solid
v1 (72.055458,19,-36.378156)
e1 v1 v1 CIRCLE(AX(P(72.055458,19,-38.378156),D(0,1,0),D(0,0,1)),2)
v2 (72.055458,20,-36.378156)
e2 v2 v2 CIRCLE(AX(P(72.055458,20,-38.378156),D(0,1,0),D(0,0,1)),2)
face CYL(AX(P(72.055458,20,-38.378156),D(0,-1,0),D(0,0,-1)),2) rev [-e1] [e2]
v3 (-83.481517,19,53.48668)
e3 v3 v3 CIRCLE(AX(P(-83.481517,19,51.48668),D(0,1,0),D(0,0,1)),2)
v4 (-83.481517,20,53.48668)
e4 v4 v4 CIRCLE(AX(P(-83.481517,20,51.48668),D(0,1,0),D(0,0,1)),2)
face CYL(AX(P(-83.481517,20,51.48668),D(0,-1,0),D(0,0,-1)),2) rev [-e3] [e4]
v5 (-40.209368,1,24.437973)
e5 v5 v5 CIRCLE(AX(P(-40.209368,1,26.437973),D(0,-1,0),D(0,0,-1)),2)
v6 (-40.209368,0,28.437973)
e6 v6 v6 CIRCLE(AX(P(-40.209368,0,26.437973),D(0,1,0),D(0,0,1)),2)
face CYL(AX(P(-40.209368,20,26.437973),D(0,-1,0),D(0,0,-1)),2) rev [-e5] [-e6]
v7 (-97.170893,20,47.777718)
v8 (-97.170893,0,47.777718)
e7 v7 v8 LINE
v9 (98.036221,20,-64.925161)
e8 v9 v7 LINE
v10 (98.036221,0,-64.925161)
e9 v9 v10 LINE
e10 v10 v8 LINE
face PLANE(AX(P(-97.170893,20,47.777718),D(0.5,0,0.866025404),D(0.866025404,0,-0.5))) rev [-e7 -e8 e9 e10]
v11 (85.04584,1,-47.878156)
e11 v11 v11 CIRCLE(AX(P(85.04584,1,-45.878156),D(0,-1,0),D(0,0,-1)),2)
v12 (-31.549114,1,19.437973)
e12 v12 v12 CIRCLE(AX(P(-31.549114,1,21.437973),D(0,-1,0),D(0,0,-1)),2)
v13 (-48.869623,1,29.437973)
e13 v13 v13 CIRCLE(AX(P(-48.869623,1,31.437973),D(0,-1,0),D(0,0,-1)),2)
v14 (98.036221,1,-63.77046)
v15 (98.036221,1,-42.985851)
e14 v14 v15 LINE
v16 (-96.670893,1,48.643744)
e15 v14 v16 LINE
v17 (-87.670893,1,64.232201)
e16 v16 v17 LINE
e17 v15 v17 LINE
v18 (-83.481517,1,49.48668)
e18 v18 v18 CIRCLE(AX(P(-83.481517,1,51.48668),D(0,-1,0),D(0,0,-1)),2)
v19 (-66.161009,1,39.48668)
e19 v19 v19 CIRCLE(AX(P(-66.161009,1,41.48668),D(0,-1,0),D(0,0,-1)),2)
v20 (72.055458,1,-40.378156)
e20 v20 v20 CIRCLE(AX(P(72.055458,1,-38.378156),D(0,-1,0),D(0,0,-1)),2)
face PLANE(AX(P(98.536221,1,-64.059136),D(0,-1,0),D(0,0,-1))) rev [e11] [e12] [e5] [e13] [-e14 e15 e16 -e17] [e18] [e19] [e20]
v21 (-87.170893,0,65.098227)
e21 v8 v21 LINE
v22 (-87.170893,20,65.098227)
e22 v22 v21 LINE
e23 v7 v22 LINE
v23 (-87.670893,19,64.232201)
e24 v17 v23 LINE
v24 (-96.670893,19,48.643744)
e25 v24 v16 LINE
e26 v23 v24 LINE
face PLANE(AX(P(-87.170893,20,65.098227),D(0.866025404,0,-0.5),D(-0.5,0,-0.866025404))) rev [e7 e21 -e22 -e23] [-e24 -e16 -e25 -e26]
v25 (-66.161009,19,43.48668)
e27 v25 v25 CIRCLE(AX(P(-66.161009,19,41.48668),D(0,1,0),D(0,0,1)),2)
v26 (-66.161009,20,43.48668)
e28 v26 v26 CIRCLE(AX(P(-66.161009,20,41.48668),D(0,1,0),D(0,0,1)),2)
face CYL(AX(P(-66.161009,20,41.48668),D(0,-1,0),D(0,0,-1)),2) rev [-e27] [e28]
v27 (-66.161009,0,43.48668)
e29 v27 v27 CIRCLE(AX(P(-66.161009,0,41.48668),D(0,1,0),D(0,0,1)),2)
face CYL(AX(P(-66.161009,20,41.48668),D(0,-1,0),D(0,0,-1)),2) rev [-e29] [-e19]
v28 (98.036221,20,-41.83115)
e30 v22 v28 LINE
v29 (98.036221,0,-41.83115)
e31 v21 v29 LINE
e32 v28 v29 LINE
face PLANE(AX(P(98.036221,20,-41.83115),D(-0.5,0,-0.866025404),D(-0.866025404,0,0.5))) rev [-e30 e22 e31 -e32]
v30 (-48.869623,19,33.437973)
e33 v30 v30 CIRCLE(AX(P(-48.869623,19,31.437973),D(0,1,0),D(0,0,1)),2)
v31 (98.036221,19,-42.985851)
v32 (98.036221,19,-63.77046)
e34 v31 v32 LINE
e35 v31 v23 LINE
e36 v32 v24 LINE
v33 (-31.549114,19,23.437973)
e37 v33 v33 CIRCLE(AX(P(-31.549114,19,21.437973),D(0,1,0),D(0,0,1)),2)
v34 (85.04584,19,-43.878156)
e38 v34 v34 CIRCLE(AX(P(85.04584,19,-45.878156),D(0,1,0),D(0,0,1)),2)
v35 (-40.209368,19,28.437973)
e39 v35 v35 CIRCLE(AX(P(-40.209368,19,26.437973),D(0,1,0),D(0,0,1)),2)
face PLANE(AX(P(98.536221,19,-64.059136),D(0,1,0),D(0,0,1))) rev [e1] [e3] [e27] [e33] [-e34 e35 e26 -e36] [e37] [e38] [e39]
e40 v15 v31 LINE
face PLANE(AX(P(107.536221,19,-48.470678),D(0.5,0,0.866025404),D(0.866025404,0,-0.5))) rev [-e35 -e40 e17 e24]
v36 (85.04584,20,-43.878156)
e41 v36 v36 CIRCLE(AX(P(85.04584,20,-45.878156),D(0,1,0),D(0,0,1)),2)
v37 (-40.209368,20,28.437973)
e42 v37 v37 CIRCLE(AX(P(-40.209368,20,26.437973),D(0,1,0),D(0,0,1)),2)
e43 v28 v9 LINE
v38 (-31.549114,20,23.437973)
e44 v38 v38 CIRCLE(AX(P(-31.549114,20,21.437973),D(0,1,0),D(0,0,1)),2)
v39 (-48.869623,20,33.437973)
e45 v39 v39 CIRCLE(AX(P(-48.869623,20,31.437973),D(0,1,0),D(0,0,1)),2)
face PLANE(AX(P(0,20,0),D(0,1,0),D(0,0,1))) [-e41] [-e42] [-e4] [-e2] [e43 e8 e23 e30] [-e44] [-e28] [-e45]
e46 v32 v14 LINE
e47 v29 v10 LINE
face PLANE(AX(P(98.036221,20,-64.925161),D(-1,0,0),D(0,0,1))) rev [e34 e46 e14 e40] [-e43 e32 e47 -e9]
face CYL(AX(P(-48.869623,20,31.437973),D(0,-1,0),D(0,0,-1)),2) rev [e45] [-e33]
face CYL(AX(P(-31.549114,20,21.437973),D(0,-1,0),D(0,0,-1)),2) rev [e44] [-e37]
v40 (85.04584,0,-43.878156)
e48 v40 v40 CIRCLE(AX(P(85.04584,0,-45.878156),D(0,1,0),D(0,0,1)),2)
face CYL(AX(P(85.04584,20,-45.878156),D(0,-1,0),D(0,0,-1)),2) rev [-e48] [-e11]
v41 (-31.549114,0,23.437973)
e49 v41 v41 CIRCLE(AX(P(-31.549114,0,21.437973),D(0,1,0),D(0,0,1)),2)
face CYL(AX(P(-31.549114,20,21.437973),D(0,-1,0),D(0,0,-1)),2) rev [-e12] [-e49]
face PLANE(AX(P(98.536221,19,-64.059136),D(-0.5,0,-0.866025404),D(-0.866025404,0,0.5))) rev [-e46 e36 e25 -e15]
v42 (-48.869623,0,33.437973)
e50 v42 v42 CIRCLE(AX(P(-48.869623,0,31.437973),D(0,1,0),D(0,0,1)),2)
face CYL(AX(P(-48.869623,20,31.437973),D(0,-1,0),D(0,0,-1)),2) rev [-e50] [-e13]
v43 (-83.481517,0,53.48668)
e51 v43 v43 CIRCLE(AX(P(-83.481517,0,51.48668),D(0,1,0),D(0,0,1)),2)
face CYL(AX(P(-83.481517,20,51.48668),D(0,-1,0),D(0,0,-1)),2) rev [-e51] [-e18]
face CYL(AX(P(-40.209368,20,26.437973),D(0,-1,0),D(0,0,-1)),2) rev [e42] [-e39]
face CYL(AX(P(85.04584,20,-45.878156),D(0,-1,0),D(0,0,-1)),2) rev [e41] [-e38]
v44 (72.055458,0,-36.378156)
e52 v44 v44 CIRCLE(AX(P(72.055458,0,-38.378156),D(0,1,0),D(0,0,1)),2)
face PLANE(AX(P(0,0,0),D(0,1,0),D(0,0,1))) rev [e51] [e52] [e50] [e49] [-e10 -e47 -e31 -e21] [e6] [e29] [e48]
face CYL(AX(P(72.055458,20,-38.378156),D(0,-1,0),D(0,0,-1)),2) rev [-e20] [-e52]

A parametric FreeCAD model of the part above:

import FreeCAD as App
import Part
import Sketcher
Q = App.Units.Quantity


def add_polygon(sketch, points):
    """Adds a closed chain of lines whose ends are joined by coincident constraints."""
    first, n = sketch.GeometryCount, len(points)
    for a, b in zip(points, points[1:] + points[:1]):
        sketch.addGeometry(Part.LineSegment(App.Vector(*a, 0), App.Vector(*b, 0)), False)
    for i in range(n):
        sketch.addConstraint(Sketcher.Constraint("Coincident", first + i, 2, first + (i + 1) % n, 1))

doc = App.newDocument("Part")
body = doc.addObject("PartDesign::Body", "Body")

# Sketch on XZ plane
sketch1 = body.newObject("Sketcher::SketchObject", "Sketch")
sketch1.AttachmentSupport = (doc.getObject("XZ_Plane"), [""])
sketch1.MapMode = "FlatFace"
add_polygon(sketch1, [(98, -41.8), (98, -64.9), (-97.2, 47.8), (-87.2, 65.1)])  # lines 0-3
sketch1.addGeometry(Part.Circle(App.Vector(-83.5, 51.5, 0), App.Vector(0, 0, 1), 2), False)  # 4
sketch1.addGeometry(Part.Circle(App.Vector(-66.2, 41.5, 0), App.Vector(0, 0, 1), 2), False)  # 5
sketch1.addGeometry(Part.Circle(App.Vector(-48.9, 31.4, 0), App.Vector(0, 0, 1), 2), False)  # 6
sketch1.addGeometry(Part.Circle(App.Vector(-40.2, 26.4, 0), App.Vector(0, 0, 1), 2), False)  # 7
sketch1.addGeometry(Part.Circle(App.Vector(-31.5, 21.4, 0), App.Vector(0, 0, 1), 2), False)  # 8
sketch1.addGeometry(Part.Circle(App.Vector(72.1, -38.4, 0), App.Vector(0, 0, 1), 2), False)  # 9
sketch1.addGeometry(Part.Circle(App.Vector(85, -45.9, 0), App.Vector(0, 0, 1), 2), False)  # 10
sketch1.addConstraint([
    Sketcher.Constraint("Vertical", 0),
    Sketcher.Constraint("Equal", 4, 5),
    Sketcher.Constraint("Equal", 5, 6),
    Sketcher.Constraint("Equal", 6, 7),
    Sketcher.Constraint("Equal", 7, 8),
    Sketcher.Constraint("Equal", 8, 9),
    Sketcher.Constraint("Equal", 9, 10),
    Sketcher.Constraint("Perpendicular", 1, 2),
    Sketcher.Constraint("Perpendicular", 2, 3),
    Sketcher.Constraint("Diameter", 4, 4.0),
    Sketcher.Constraint("Angle", 1, Q("150 deg")),
    Sketcher.Constraint("Distance", 2, 20.0),
    Sketcher.Constraint("DistanceY", 5, 3, 4, 3, 10.0),
    Sketcher.Constraint("DistanceY", 7, 3, 6, 3, 5.0),
    Sketcher.Constraint("DistanceY", 8, 3, 7, 3, 5.0),
    Sketcher.Constraint("DistanceY", 10, 3, 9, 3, 7.5),
    Sketcher.Constraint("Distance", 1, 225.405759),
    Sketcher.Constraint("DistanceY", -1, 1, 4, 3, 51.48668),
    Sketcher.Constraint("DistanceX", 5, 3, -1, 1, 66.161009),
    Sketcher.Constraint("DistanceX", 7, 3, -1, 1, 40.209368),
    Sketcher.Constraint("DistanceX", -1, 1, 9, 3, 72.055458),
    Sketcher.Constraint("DistanceX", -1, 1, 10, 3, 85.04584),
    Sketcher.Constraint("DistanceX", -1, 1, 0, 2, 98.036221),
    Sketcher.Constraint("DistanceY", 0, 2, -1, 1, 64.925161),
    Sketcher.Constraint("DistanceX", 4, 3, 5, 3, 17.320508),
    Sketcher.Constraint("DistanceX", 6, 3, 8, 3, 17.320508),
    Sketcher.Constraint("DistanceY", 9, 3, 8, 3, 59.816128),
    Sketcher.Constraint("DistanceX", 6, 3, 9, 3, 120.925081),
    Sketcher.Constraint("DistanceY", -1, 1, 6, 3, 31.437973),
])
pad1 = body.newObject("PartDesign::Pad", "Pad")
pad1.Profile = sketch1
pad1.Length = 20
pad1.Reversed = True

# Sketch on an angled plane
sketch2 = body.newObject("Sketcher::SketchObject", "Sketch001")
sketch2.Placement = App.Placement(App.Vector(-93.566529, 0, 54.02066), App.Rotation(App.Vector(0.5, 0, 0.866025404), App.Vector(0, 1, 0), App.Vector(-0.866025404, 0, 0.5), "ZXY"))
add_polygon(sketch2, [(-6, 19), (-6, 1), (12, 1), (12, 19)])  # lines 0-3
sketch2.addConstraint([
    Sketcher.Constraint("Vertical", 0),
    Sketcher.Constraint("Horizontal", 1),
    Sketcher.Constraint("Vertical", 2),
    Sketcher.Constraint("Horizontal", 3),
    Sketcher.Constraint("Equal", 3, 0),
    Sketcher.Constraint("DistanceX", 1, 1, 1, 2, 18.0),
    Sketcher.Constraint("DistanceY", -1, 1, 0, 2, 1.0),
    Sketcher.Constraint("DistanceX", 0, 2, -1, 1, 6.208728),
])
pocket1 = body.newObject("PartDesign::Pocket", "Pocket")
pocket1.Profile = sketch2
pocket1.Type = "ThroughAll"

doc.recompute()
